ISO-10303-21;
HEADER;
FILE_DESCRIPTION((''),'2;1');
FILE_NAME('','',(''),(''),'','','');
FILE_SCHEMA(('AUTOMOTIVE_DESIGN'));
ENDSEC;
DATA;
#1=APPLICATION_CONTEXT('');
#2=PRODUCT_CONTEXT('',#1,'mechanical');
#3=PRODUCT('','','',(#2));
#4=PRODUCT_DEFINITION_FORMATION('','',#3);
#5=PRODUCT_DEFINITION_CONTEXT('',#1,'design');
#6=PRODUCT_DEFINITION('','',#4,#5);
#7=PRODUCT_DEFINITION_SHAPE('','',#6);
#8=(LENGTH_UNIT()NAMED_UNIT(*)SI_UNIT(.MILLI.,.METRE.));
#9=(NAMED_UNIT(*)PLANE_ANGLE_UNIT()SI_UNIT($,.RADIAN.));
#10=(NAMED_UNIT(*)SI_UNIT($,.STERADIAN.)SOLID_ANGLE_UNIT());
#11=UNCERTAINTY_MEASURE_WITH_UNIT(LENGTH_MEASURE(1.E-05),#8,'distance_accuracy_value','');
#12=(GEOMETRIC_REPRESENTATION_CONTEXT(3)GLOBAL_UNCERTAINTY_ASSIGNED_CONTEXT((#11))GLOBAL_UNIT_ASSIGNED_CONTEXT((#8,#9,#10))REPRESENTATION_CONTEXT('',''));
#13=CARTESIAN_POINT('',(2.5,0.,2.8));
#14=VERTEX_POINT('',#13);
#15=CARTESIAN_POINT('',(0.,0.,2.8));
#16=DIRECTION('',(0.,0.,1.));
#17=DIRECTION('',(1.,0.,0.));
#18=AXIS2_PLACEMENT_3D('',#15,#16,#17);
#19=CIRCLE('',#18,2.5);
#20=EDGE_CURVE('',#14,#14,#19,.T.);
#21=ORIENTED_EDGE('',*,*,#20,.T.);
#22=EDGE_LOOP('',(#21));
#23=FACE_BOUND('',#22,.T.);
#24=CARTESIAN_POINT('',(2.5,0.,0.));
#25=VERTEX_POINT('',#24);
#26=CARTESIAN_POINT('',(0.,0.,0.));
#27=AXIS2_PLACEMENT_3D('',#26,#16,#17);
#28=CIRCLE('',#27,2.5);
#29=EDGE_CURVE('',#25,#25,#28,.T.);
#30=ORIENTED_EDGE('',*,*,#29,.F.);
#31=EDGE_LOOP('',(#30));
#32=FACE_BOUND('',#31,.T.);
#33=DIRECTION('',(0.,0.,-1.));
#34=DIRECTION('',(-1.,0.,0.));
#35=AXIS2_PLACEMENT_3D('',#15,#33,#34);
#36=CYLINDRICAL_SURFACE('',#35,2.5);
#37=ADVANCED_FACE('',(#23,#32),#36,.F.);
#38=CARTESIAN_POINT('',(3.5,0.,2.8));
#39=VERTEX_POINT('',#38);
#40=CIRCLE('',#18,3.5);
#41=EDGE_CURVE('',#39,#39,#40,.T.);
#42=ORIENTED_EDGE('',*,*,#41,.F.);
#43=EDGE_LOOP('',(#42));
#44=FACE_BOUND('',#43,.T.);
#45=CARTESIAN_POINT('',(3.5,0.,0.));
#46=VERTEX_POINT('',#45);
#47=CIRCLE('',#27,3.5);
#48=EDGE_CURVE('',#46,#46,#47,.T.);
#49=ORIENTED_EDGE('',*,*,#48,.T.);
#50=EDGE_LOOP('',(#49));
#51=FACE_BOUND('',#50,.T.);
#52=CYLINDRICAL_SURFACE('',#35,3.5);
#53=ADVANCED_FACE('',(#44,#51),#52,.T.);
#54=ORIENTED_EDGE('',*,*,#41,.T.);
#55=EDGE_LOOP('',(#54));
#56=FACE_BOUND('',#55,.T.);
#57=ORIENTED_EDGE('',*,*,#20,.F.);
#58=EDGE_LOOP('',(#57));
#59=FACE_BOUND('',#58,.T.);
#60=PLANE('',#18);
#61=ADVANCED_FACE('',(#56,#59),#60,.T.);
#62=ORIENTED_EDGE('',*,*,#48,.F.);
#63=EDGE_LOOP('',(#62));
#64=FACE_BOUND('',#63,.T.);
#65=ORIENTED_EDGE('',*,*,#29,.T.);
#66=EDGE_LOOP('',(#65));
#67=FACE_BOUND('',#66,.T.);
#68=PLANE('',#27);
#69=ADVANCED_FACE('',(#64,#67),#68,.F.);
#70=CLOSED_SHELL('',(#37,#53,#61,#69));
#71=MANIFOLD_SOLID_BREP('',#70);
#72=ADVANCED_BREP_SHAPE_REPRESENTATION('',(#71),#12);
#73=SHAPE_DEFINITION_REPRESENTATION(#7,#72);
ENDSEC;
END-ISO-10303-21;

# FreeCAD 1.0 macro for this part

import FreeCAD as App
import Part
import Sketcher
Q = App.Units.Quantity

doc = App.newDocument("Part")
body = doc.addObject("PartDesign::Body", "Body")

# Sketch on XY plane
sketch1 = body.newObject("Sketcher::SketchObject", "Sketch")
sketch1.AttachmentSupport = (doc.getObject("XY_Plane"), [""])
sketch1.MapMode = "FlatFace"
sketch1.addGeometry([
    Part.Circle(App.Vector(0, 0, 0), App.Vector(0, 0, 1), 3.5),
    Part.Circle(App.Vector(0, 0, 0), App.Vector(0, 0, 1), 2.5),
], False)
sketch1.addConstraint([
    Sketcher.Constraint("Coincident", 0, 3, -1, 1),
    Sketcher.Constraint("Coincident", 1, 3, -1, 1),
    Sketcher.Constraint("Diameter", 0, Q("7 mm")),
    Sketcher.Constraint("Diameter", 1, Q("5 mm")),
])
pad1 = body.newObject("PartDesign::Pad", "Pad")
pad1.Profile = sketch1
pad1.Length = 2.8

doc.recompute()
